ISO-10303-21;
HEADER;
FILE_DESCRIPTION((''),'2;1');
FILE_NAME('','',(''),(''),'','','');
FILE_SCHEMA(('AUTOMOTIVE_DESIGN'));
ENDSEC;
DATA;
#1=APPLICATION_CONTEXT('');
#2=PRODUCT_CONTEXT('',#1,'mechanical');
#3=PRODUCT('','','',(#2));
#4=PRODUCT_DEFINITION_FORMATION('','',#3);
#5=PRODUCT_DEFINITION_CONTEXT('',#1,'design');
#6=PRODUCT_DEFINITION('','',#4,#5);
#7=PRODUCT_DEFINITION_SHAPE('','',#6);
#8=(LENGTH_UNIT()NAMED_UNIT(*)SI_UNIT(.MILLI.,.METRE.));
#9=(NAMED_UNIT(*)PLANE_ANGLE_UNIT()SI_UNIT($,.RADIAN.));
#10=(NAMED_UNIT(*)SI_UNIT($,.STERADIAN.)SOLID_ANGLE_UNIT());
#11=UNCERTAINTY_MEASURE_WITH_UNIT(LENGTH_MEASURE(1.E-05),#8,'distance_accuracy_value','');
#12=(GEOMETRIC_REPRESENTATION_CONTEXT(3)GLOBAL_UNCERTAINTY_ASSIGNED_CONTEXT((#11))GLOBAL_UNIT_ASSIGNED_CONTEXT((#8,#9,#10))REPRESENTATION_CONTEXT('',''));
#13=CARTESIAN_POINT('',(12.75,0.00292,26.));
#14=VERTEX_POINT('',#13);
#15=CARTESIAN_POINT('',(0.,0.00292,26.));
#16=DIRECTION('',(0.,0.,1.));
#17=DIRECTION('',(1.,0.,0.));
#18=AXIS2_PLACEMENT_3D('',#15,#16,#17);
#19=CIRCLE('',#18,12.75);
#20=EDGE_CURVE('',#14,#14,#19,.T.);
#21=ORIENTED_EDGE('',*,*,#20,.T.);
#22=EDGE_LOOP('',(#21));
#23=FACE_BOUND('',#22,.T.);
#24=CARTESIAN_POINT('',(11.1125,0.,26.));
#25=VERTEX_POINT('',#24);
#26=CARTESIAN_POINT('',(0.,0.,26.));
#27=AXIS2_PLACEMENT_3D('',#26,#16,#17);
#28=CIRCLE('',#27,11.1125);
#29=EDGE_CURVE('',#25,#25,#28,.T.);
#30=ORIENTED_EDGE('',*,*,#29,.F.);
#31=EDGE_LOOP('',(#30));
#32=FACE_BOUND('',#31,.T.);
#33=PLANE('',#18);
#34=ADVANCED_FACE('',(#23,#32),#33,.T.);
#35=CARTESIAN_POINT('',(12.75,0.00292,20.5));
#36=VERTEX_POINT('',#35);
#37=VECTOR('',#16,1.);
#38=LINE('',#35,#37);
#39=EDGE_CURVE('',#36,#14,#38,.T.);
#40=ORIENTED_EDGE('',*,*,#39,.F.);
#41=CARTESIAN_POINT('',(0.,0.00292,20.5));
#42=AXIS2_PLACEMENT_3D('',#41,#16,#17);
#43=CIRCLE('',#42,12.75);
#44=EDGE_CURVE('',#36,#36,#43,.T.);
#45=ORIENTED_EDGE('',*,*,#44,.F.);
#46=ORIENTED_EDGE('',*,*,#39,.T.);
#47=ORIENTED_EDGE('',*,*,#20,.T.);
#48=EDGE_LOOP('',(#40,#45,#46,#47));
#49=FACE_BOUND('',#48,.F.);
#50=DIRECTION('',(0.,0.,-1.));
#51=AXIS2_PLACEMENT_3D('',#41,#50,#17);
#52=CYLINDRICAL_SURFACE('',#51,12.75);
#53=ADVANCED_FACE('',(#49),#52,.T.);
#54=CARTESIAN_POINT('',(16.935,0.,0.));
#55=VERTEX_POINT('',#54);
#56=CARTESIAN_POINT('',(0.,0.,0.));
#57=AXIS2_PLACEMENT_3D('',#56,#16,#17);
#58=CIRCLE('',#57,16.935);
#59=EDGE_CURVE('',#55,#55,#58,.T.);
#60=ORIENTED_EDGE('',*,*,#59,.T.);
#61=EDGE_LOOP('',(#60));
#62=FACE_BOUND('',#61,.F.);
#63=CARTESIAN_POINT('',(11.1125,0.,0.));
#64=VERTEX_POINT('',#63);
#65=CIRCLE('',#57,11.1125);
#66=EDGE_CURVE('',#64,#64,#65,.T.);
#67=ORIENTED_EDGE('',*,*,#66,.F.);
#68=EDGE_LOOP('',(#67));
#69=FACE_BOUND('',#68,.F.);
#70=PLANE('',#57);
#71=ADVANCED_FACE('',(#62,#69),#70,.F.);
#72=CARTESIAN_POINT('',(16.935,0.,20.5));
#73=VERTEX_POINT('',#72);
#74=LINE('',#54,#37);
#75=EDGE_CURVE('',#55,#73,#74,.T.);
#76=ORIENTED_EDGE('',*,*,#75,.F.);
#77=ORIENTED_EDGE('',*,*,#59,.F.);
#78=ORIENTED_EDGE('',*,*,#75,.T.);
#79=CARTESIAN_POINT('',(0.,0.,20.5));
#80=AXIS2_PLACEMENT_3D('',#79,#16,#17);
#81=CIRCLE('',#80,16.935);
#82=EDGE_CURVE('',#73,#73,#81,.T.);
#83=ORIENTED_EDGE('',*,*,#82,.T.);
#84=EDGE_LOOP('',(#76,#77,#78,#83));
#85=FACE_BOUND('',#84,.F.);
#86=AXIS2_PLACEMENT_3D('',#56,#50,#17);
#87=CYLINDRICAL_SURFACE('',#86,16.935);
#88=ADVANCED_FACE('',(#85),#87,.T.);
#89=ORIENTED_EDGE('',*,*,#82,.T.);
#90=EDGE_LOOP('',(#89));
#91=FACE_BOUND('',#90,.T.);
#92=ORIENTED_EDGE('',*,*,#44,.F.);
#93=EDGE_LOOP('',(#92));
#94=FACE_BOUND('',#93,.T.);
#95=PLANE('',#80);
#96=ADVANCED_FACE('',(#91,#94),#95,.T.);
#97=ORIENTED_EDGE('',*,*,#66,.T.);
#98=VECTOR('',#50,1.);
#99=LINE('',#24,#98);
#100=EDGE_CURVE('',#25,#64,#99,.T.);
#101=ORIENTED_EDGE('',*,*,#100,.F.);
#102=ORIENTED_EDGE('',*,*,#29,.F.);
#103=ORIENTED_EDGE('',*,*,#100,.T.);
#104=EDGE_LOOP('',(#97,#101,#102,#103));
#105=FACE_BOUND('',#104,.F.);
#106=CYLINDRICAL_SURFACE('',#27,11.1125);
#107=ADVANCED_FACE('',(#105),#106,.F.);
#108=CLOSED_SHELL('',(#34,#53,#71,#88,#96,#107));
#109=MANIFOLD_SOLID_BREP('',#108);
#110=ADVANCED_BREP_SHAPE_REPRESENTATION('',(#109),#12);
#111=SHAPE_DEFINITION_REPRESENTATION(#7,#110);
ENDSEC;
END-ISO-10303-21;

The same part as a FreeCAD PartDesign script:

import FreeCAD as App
import Part
import Sketcher

V = App.Vector

doc = App.newDocument("Part")
body = doc.addObject("PartDesign::Body", "Body")

# Sketch on XY plane
sketch1 = doc.addObject("Sketcher::SketchObject", "Sketch")
body.addObject(sketch1)
sketch1.AttachmentSupport = (doc.XY_Plane, [""])
sketch1.MapMode = "FlatFace"
sketch1.addGeometry(Part.Circle(V(0, 0, 0), V(0, 0, 1), 17), False)
sketch1.addConstraint([
    Sketcher.Constraint("Coincident", 0, 3, -1, 1),
    Sketcher.Constraint("Diameter", 0, 33.87),
])
pad1 = doc.addObject("PartDesign::Pad", "Pad")
body.addObject(pad1)
pad1.Profile = sketch1
pad1.Length = 20.5

# Sketch on XY plane
sketch2 = doc.addObject("Sketcher::SketchObject", "Sketch001")
body.addObject(sketch2)
sketch2.AttachmentSupport = (doc.XY_Plane, [""])
sketch2.MapMode = "FlatFace"
sketch2.AttachmentOffset = App.Placement(V(0, 0, 20.5), App.Rotation())
sketch2.addGeometry(Part.Circle(V(0, 0, 0), V(0, 0, 1), 13), False)
sketch2.addConstraint([
    Sketcher.Constraint("PointOnObject", 0, 3, -2),
    Sketcher.Constraint("Diameter", 0, 25.5),
    Sketcher.Constraint("DistanceY", -1, 1, 0, 3, 0.00292),
])
pad2 = doc.addObject("PartDesign::Pad", "Pad001")
body.addObject(pad2)
pad2.Profile = sketch2
pad2.Length = 5.5

# Sketch on XY plane
sketch3 = doc.addObject("Sketcher::SketchObject", "Sketch002")
body.addObject(sketch3)
sketch3.AttachmentSupport = (doc.XY_Plane, [""])
sketch3.MapMode = "FlatFace"
sketch3.AttachmentOffset = App.Placement(V(0, 0, 26), App.Rotation())
sketch3.addGeometry(Part.Circle(V(0, 0, 0), V(0, 0, 1), 11), False)
sketch3.addConstraint([
    Sketcher.Constraint("Coincident", 0, 3, -1, 1),
    Sketcher.Constraint("Diameter", 0, 22.225),
])
pocket1 = doc.addObject("PartDesign::Pocket", "Pocket")
body.addObject(pocket1)
pocket1.Profile = sketch3
pocket1.Length = 40.132

doc.recompute()
